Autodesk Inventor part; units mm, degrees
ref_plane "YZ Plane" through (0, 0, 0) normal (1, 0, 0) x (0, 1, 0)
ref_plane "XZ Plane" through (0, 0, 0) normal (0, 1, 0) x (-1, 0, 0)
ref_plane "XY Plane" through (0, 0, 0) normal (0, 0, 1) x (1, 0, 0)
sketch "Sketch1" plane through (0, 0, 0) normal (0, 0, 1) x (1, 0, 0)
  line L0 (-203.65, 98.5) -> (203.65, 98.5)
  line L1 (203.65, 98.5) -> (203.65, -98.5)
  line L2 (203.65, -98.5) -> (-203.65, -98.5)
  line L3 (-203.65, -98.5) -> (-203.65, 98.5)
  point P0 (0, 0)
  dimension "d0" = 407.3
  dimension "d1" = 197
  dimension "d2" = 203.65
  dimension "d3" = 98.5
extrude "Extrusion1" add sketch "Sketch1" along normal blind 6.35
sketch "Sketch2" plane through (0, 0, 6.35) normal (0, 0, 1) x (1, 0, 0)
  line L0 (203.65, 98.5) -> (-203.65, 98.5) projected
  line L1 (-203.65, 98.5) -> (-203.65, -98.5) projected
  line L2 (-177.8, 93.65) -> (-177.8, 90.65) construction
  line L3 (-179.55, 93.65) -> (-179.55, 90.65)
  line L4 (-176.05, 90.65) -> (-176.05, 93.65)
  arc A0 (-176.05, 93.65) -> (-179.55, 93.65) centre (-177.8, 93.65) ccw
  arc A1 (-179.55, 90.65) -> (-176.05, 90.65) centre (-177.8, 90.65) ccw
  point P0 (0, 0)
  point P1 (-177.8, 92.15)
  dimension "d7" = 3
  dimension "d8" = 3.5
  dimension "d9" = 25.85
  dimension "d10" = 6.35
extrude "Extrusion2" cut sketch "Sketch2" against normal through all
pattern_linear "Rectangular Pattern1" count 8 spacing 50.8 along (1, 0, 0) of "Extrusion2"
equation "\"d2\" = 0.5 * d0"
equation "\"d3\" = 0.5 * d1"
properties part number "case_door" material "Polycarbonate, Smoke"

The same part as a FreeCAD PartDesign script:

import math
import FreeCAD as App
import Part
import Sketcher
from FreeCAD import Vector
Q = App.Units.Quantity


def add_polygon(sketch, points):
    """Adds a closed chain of lines whose ends are joined by coincident constraints."""
    first, n = sketch.GeometryCount, len(points)
    for a, b in zip(points, points[1:] + points[:1]):
        sketch.addGeometry(Part.LineSegment(App.Vector(*a, 0), App.Vector(*b, 0)), False)
    for i in range(n):
        sketch.addConstraint(Sketcher.Constraint("Coincident", first + i, 2, first + (i + 1) % n, 1))

doc = App.newDocument("Part")
body = doc.addObject("PartDesign::Body", "Body")

sketch1 = body.newObject("Sketcher::SketchObject", "Sketch")
sketch1.AttachmentSupport = (doc.getObject("XY_Plane"), [""])
sketch1.MapMode = "FlatFace"
add_polygon(sketch1, [(203.65, 98.5), (-203.65, 98.5), (-203.65, -98.5), (203.65, -98.5)])
sketch1.addConstraint([
    Sketcher.Constraint("Horizontal", 0),
    Sketcher.Constraint("Vertical", 1),
    Sketcher.Constraint("Horizontal", 2),
    Sketcher.Constraint("Vertical", 3),
    Sketcher.Constraint("Symmetric", 0, 2, 2, 2, -1, 1),
    Sketcher.Constraint("DistanceY", 1, 2, 1, 1, Q("197 mm")),
    Sketcher.Constraint("DistanceX", 0, 2, 0, 1, Q("407.3 mm")),
])
pad1 = body.newObject("PartDesign::Pad", "Pad")
pad1.Profile = sketch1
pad1.Length = 6.35

sketch2 = body.newObject("Sketcher::SketchObject", "Sketch001")
sketch2.AttachmentSupport = (doc.getObject("XY_Plane"), [""])
sketch2.MapMode = "FlatFace"
sketch2.AttachmentOffset = App.Placement(Vector(0, 0, 6.35), App.Rotation())
sketch2.addGeometry([
    Part.ArcOfCircle(Part.Circle(Vector(-177.8, 93.65, 0), Vector(0, 0, 1), 1.75), math.radians(0), math.radians(180)),
    Part.LineSegment(Vector(-179.55, 93.65, 0), Vector(-179.55, 90.65, 0)),
    Part.ArcOfCircle(Part.Circle(Vector(-177.8, 90.65, 0), Vector(0, 0, 1), 1.75), math.radians(180), math.radians(360)),
    Part.LineSegment(Vector(-176.05, 90.65, 0), Vector(-176.05, 93.65, 0)),
], False)
sketch2.addConstraint([
    Sketcher.Constraint("Tangent", 0, 2, 1, 1),
    Sketcher.Constraint("Tangent", 1, 2, 2, 1),
    Sketcher.Constraint("Tangent", 2, 2, 3, 1),
    Sketcher.Constraint("Tangent", 3, 2, 0, 1),
    Sketcher.Constraint("Vertical", 1),
    Sketcher.Constraint("Vertical", 3),
    Sketcher.Constraint("DistanceY", 1, 2, 1, 1, Q("3 mm")),
    Sketcher.Constraint("Radius", 0, Q("1.75 mm")),
    Sketcher.Constraint("DistanceX", 0, 3, -1, 1, Q("177.8 mm")),
    Sketcher.Constraint("DistanceY", -1, 1, 0, 3, Q("93.65 mm")),
])
pocket1 = body.newObject("PartDesign::Pocket", "Pocket")
pocket1.Profile = sketch2
pocket1.Type = "ThroughAll"
doc.recompute()

linearpattern = body.newObject("PartDesign::LinearPattern", "LinearPattern")
linearpattern.Originals = [pocket1]
linearpattern.Direction = (doc.getObject("X_Axis"), [""])
linearpattern.Mode = "offset"
linearpattern.Offset = 50.8
linearpattern.Occurrences = 8
body.Tip = linearpattern

doc.recompute()
